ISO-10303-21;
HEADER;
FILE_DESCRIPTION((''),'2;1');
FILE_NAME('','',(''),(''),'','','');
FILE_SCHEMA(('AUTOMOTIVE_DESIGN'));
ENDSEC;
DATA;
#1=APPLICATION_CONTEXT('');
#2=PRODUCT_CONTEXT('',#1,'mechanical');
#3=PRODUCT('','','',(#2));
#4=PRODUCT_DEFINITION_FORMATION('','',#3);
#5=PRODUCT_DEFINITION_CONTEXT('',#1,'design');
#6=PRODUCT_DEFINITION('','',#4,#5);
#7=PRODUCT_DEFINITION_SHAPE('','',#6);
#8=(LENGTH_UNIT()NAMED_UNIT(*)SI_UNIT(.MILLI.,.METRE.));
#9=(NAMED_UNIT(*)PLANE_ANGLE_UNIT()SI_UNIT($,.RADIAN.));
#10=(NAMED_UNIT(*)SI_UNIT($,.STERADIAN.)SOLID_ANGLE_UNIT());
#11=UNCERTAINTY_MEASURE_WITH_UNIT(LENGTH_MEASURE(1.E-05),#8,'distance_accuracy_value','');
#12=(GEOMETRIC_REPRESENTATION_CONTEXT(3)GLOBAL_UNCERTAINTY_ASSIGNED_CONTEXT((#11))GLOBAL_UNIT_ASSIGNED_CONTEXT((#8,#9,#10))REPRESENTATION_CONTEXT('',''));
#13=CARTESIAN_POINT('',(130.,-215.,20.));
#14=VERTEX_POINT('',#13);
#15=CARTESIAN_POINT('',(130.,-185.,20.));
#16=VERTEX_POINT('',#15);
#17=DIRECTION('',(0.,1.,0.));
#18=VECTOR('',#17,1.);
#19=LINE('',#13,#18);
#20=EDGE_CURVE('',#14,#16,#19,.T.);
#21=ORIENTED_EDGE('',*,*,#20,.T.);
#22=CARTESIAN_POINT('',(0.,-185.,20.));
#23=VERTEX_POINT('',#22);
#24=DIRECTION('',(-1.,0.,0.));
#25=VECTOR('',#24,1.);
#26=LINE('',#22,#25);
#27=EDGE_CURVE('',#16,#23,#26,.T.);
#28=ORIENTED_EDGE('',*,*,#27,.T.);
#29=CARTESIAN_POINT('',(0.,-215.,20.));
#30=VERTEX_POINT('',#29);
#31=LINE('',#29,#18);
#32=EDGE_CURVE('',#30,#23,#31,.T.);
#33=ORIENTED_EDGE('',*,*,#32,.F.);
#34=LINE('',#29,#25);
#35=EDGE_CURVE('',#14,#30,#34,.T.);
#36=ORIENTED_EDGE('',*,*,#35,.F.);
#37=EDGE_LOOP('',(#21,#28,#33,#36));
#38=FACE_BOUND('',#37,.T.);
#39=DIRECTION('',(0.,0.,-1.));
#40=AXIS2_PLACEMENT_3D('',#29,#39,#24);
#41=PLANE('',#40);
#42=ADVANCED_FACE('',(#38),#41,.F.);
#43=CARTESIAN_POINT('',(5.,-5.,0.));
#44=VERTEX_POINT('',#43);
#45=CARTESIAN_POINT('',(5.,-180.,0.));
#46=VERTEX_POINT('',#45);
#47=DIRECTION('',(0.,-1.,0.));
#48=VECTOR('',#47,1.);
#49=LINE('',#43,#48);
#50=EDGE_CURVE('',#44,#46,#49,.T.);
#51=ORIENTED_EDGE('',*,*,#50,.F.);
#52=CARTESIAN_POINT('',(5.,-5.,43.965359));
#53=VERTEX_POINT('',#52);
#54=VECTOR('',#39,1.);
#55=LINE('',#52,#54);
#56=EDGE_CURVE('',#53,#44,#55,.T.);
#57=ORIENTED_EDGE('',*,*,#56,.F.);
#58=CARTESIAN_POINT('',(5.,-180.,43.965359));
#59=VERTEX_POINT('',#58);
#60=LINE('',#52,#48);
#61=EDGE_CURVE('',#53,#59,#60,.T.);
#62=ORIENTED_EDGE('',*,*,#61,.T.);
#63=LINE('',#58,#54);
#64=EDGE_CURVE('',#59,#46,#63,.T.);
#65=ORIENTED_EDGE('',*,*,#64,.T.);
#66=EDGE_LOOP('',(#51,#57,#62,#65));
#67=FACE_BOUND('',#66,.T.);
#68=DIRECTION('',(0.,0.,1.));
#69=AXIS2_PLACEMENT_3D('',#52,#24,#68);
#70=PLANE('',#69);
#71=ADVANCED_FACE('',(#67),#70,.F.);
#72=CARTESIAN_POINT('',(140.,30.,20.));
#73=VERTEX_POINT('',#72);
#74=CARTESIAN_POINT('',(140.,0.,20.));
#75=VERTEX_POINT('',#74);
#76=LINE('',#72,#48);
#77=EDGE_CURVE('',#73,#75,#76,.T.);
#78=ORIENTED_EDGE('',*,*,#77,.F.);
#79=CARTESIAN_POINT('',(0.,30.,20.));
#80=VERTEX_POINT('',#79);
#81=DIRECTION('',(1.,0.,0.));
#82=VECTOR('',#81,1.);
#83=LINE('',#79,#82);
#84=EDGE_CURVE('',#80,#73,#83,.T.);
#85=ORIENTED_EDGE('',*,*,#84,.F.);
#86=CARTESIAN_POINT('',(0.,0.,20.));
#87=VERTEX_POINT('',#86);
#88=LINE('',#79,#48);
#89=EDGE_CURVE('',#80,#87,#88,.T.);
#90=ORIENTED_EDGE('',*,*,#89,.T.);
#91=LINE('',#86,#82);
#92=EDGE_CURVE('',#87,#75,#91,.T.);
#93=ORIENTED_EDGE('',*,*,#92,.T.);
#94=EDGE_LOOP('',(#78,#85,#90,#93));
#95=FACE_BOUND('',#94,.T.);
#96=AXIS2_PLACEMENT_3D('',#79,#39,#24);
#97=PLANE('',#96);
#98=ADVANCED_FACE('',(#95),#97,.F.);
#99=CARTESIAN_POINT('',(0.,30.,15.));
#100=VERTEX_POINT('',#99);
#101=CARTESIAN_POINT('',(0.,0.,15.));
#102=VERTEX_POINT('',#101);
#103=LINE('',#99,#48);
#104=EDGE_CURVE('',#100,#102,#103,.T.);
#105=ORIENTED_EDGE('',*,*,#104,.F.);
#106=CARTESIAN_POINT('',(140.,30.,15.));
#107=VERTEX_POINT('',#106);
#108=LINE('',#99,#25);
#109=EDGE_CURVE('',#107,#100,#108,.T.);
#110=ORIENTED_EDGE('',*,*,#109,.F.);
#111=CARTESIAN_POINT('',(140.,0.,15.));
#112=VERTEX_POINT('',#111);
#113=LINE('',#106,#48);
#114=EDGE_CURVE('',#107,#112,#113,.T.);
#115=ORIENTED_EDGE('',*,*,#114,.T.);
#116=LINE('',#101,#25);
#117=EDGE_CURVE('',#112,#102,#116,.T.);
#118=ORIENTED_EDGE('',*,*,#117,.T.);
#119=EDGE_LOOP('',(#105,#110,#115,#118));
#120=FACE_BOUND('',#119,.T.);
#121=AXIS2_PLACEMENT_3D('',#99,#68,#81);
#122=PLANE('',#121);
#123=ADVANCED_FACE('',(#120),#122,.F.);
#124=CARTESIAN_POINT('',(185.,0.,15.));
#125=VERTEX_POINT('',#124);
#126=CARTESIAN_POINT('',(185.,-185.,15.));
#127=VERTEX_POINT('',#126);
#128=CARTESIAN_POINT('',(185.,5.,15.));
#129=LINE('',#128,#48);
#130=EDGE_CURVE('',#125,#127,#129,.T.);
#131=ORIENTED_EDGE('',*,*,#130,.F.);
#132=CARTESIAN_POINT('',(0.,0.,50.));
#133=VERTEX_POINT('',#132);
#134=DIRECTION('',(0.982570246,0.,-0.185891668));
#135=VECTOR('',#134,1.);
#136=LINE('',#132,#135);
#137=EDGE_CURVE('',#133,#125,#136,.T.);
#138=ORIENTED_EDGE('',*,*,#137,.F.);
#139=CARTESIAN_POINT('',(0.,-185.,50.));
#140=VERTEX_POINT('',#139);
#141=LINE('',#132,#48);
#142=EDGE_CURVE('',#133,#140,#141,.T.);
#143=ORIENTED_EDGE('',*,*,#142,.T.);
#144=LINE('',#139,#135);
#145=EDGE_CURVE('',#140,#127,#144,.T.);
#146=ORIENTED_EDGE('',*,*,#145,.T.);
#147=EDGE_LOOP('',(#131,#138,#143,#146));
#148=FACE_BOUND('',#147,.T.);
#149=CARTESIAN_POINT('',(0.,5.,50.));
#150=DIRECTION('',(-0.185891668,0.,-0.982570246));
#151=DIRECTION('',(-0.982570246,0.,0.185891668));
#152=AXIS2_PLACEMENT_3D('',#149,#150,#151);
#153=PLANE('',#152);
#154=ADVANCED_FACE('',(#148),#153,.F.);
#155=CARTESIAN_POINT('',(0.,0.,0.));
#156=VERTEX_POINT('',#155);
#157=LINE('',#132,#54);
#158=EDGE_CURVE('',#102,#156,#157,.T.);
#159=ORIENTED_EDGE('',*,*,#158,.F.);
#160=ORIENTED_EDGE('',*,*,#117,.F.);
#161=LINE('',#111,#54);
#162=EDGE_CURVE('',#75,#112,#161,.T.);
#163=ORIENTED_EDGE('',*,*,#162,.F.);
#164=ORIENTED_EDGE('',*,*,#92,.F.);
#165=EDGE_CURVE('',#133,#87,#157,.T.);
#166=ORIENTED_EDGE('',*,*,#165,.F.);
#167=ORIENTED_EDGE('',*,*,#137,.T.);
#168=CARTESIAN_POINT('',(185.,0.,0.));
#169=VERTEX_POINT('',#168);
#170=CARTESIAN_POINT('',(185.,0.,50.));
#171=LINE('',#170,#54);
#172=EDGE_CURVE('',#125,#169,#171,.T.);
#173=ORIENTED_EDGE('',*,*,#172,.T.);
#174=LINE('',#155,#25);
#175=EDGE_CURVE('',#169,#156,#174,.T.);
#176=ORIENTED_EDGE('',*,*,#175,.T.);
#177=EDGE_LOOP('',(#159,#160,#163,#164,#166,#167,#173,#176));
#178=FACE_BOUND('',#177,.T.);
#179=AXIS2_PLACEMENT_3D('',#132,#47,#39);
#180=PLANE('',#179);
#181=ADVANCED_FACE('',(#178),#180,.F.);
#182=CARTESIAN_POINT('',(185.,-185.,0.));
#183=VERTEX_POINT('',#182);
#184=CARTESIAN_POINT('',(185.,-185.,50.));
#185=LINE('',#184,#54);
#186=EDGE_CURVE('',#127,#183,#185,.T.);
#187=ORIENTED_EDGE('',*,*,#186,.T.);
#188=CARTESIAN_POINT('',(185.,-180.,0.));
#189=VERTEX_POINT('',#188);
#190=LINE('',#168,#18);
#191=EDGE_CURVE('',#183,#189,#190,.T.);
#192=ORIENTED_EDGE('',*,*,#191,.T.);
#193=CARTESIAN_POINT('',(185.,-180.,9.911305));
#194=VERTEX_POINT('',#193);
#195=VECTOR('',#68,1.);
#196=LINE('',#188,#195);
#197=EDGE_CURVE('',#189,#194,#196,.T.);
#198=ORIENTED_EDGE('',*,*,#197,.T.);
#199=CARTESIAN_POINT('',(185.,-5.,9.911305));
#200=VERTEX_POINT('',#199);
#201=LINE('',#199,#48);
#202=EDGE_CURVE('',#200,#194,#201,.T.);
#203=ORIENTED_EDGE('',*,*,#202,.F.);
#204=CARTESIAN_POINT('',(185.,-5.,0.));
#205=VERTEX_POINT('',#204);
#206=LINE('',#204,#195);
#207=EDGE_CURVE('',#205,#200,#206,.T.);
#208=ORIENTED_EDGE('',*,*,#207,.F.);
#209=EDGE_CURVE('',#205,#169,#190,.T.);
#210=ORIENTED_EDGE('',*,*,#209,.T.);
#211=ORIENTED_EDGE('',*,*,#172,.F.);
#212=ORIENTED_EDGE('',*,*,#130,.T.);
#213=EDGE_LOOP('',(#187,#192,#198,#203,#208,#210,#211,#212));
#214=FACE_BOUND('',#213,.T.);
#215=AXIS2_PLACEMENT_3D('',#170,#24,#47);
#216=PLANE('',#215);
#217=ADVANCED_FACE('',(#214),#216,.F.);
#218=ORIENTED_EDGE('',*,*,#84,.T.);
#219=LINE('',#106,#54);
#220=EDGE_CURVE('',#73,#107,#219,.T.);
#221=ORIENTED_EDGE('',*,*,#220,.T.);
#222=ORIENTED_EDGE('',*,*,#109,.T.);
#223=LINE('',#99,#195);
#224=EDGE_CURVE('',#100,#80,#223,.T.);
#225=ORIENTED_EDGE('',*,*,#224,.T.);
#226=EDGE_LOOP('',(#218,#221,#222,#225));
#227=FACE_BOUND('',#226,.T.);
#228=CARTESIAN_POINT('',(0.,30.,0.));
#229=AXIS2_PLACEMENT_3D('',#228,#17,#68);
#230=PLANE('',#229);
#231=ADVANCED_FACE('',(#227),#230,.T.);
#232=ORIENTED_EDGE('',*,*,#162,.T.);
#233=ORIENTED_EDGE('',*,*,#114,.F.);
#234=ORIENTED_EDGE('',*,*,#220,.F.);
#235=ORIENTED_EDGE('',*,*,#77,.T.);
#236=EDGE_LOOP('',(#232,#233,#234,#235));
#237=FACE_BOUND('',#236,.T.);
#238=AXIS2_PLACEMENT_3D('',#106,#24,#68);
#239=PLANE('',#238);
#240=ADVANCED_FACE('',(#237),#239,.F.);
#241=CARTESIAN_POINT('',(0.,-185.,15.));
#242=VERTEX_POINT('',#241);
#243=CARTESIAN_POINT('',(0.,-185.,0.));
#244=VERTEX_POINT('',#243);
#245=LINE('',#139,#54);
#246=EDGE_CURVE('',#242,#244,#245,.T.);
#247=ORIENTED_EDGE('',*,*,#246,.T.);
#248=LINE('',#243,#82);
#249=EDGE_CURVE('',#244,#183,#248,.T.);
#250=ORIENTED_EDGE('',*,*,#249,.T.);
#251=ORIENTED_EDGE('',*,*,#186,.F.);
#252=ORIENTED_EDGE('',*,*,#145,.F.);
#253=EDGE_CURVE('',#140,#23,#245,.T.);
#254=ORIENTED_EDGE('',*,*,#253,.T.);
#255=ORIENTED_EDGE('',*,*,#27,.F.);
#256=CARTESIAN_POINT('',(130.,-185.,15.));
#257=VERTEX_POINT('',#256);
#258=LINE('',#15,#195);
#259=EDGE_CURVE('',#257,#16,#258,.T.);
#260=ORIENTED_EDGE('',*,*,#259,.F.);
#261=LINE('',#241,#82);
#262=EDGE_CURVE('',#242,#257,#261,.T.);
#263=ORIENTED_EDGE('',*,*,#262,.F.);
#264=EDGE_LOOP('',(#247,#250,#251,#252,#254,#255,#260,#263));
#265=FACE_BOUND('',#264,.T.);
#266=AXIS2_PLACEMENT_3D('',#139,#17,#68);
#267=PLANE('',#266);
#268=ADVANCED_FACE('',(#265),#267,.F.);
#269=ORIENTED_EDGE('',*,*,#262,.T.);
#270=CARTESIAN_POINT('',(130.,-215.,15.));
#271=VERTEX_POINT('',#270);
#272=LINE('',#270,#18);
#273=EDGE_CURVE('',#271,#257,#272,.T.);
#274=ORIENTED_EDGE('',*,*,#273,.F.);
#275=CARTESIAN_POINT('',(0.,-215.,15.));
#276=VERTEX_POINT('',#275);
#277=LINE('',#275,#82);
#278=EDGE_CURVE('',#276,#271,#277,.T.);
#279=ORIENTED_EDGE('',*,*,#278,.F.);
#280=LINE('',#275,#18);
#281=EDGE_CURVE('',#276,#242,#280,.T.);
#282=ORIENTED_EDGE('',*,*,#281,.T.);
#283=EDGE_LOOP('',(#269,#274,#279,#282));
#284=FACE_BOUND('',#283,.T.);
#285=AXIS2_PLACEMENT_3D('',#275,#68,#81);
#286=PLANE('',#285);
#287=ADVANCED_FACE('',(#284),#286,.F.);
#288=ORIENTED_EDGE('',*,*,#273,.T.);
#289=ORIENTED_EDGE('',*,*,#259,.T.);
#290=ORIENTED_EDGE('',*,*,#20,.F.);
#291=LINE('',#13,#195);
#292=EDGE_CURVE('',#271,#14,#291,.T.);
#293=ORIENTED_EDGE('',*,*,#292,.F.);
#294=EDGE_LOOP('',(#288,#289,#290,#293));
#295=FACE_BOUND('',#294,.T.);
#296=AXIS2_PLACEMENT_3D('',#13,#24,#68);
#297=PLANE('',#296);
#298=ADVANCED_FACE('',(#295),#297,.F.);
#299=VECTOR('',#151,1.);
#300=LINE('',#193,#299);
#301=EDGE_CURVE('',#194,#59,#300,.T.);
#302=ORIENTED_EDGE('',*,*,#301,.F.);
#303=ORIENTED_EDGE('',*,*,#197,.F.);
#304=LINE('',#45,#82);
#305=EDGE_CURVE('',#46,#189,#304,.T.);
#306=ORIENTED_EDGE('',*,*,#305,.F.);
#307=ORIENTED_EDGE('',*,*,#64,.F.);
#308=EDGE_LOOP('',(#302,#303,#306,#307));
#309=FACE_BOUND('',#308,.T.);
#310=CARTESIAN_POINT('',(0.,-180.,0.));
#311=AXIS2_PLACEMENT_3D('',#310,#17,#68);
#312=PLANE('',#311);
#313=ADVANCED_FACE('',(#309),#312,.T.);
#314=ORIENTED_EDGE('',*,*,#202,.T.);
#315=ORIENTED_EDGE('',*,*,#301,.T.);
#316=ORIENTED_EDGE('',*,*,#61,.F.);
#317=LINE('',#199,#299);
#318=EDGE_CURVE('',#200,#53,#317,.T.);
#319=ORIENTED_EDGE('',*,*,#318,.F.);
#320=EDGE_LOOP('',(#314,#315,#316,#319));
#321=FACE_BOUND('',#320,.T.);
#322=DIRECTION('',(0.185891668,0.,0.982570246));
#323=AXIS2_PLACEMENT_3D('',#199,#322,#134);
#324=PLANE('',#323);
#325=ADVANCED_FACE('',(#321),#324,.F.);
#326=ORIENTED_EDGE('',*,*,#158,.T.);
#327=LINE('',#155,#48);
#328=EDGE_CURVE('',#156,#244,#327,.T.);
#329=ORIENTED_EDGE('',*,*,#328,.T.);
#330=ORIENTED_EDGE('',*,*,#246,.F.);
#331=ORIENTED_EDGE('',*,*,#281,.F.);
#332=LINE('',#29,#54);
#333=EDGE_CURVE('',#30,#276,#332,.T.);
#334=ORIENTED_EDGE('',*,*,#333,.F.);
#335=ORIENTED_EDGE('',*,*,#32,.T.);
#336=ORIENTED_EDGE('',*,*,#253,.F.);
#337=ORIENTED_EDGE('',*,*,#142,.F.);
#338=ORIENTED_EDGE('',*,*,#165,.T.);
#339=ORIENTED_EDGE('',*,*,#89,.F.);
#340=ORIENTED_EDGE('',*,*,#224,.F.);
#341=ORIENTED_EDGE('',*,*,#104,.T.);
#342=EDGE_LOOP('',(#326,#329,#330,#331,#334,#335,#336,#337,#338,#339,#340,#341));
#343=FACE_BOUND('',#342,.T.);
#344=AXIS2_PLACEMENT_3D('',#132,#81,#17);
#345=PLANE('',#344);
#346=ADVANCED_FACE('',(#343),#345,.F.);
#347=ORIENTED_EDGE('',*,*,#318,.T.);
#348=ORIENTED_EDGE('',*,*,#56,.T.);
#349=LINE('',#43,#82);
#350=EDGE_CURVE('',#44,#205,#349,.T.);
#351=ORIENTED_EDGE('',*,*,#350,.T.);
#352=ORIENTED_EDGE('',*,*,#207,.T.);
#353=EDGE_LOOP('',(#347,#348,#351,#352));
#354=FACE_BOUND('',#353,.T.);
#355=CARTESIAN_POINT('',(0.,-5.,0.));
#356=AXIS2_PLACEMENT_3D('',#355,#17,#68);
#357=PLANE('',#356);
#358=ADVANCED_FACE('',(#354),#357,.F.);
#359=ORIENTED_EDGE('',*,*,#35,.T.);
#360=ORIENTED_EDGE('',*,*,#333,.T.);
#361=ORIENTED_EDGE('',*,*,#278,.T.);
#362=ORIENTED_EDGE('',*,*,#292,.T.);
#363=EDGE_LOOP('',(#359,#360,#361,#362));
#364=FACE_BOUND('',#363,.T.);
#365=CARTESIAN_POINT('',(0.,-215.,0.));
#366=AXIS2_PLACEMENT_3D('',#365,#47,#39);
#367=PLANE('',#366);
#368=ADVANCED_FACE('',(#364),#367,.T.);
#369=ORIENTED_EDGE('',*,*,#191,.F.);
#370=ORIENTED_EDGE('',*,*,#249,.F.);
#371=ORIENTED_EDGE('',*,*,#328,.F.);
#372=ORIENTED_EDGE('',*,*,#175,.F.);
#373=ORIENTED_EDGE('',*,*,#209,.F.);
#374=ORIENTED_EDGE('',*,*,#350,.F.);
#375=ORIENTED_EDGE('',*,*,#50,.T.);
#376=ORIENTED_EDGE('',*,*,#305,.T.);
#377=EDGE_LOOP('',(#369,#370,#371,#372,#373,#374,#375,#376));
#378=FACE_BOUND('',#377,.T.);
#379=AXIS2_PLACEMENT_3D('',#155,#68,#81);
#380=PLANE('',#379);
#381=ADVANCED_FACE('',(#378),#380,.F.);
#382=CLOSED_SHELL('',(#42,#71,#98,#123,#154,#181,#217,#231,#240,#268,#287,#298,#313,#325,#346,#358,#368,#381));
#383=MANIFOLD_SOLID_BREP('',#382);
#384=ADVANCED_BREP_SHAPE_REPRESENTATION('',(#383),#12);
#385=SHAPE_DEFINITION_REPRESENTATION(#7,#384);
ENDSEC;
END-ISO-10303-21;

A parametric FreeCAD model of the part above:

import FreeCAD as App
import Part
import Sketcher

V = App.Vector

doc = App.newDocument("Part")
body = doc.addObject("PartDesign::Body", "Body")

sketch1 = body.newObject("Sketcher::SketchObject", "Sketch")
sketch1.AttachmentSupport = (doc.getObject("XY_Plane"), [""])
sketch1.MapMode = "FlatFace"
sketch1.addGeometry(Part.LineSegment(V(0, 0, 0), V(0, -185, 0)), False)
sketch1.addGeometry(Part.LineSegment(V(0, -185, 0), V(185, -185, 0)), False)
sketch1.addGeometry(Part.LineSegment(V(185, -185, 0), V(185, 0, 0)), False)
sketch1.addGeometry(Part.LineSegment(V(185, 0, 0), V(0, 0, 0)), False)
sketch1.addConstraint(Sketcher.Constraint("Coincident", 0, 2, 1, 1))
sketch1.addConstraint(Sketcher.Constraint("Coincident", 1, 2, 2, 1))
sketch1.addConstraint(Sketcher.Constraint("Coincident", 2, 2, 3, 1))
sketch1.addConstraint(Sketcher.Constraint("Coincident", 3, 2, 0, 1))
sketch1.addConstraint(Sketcher.Constraint("Vertical", 0))
sketch1.addConstraint(Sketcher.Constraint("Horizontal", 1))
sketch1.addConstraint(Sketcher.Constraint("Vertical", 2))
sketch1.addConstraint(Sketcher.Constraint("Horizontal", 3))
sketch1.addConstraint(Sketcher.Constraint("Coincident", 3, 2, -1, 1))
sketch1.addConstraint(Sketcher.Constraint("Equal", 3, 0))
sketch1.addConstraint(Sketcher.Constraint("DistanceX", 1, 1, 1, 2, 185.0))
pad1 = body.newObject("PartDesign::Pad", "Pad")
pad1.Profile = sketch1
pad1.Length = 50

sketch2 = body.newObject("Sketcher::SketchObject", "Sketch001")
sketch2.AttachmentSupport = (doc.getObject("XZ_Plane"), [""])
sketch2.MapMode = "FlatFace"
sketch2.AttachmentOffset = App.Placement(V(0, 0, 185), App.Rotation())
sketch2.addGeometry(Part.LineSegment(V(0, 50, 0), V(185, 15, 0)), False)
sketch2.addGeometry(Part.LineSegment(V(185, 15, 0), V(185, 50, 0)), False)
sketch2.addGeometry(Part.LineSegment(V(185, 50, 0), V(0, 50, 0)), False)
sketch2.addConstraint(Sketcher.Constraint("Coincident", 0, 2, 1, 1))
sketch2.addConstraint(Sketcher.Constraint("Coincident", 1, 2, 2, 1))
sketch2.addConstraint(Sketcher.Constraint("Coincident", 2, 2, 0, 1))
sketch2.addConstraint(Sketcher.Constraint("Vertical", 1))
sketch2.addConstraint(Sketcher.Constraint("Horizontal", 2))
sketch2.addConstraint(Sketcher.Constraint("PointOnObject", 2, 2, -2))
sketch2.addConstraint(Sketcher.Constraint("DistanceX", 2, 2, 2, 1, 185.0))
sketch2.addConstraint(Sketcher.Constraint("DistanceY", 1, 1, 1, 2, 35.0))
sketch2.addConstraint(Sketcher.Constraint("DistanceY", -1, 1, 0, 2, 15.0))
pocket1 = body.newObject("PartDesign::Pocket", "Pocket")
pocket1.Profile = sketch2
pocket1.Length = 190

sketch3 = body.newObject("Sketcher::SketchObject", "Sketch002")
sketch3.AttachmentSupport = (doc.getObject("XZ_Plane"), [""])
sketch3.MapMode = "FlatFace"
sketch3.AttachmentOffset = App.Placement(V(0, 0, 180), App.Rotation())
sketch3.addGeometry(Part.LineSegment(V(185, 10, 0), V(5, 44, 0)), False)
sketch3.addGeometry(Part.LineSegment(V(5, 44, 0), V(5, 0, 0)), False)
sketch3.addGeometry(Part.LineSegment(V(5, 0, 0), V(185, 0, 0)), False)
sketch3.addGeometry(Part.LineSegment(V(185, 0, 0), V(185, 10, 0)), False)
sketch3.addConstraint(Sketcher.Constraint("Coincident", 0, 2, 1, 1))
sketch3.addConstraint(Sketcher.Constraint("Coincident", 1, 2, 2, 1))
sketch3.addConstraint(Sketcher.Constraint("Coincident", 2, 2, 3, 1))
sketch3.addConstraint(Sketcher.Constraint("Coincident", 3, 2, 0, 1))
sketch3.addConstraint(Sketcher.Constraint("Vertical", 1))
sketch3.addConstraint(Sketcher.Constraint("Horizontal", 2))
sketch3.addConstraint(Sketcher.Constraint("Vertical", 3))
sketch3.addConstraint(Sketcher.Constraint("PointOnObject", 1, 2, -1))
sketch3.addConstraint(Sketcher.Constraint("DistanceX", 2, 1, 2, 2, 180.0))
sketch3.addConstraint(Sketcher.Constraint("DistanceX", -1, 1, 0, 2, 5.0))
sketch3.addConstraint(Sketcher.Constraint("DistanceY", 1, 2, 1, 1, 43.965359))
sketch3.addConstraint(Sketcher.Constraint("Distance", 0, 183.193009))
pocket2 = body.newObject("PartDesign::Pocket", "Pocket001")
pocket2.Profile = sketch3
pocket2.Length = 175

sketch4 = body.newObject("Sketcher::SketchObject", "Sketch003")
sketch4.AttachmentSupport = (doc.getObject("XZ_Plane"), [""])
sketch4.MapMode = "FlatFace"
sketch4.AttachmentOffset = App.Placement(V(0, 0, 185), App.Rotation())
sketch4.addGeometry(Part.LineSegment(V(0, 20, 0), V(0, 15, 0)), False)
sketch4.addGeometry(Part.LineSegment(V(0, 15, 0), V(130, 15, 0)), False)
sketch4.addGeometry(Part.LineSegment(V(130, 15, 0), V(130, 20, 0)), False)
sketch4.addGeometry(Part.LineSegment(V(130, 20, 0), V(0, 20, 0)), False)
sketch4.addConstraint(Sketcher.Constraint("Coincident", 0, 2, 1, 1))
sketch4.addConstraint(Sketcher.Constraint("Coincident", 1, 2, 2, 1))
sketch4.addConstraint(Sketcher.Constraint("Coincident", 2, 2, 3, 1))
sketch4.addConstraint(Sketcher.Constraint("Coincident", 3, 2, 0, 1))
sketch4.addConstraint(Sketcher.Constraint("Vertical", 0))
sketch4.addConstraint(Sketcher.Constraint("Horizontal", 1))
sketch4.addConstraint(Sketcher.Constraint("Vertical", 2))
sketch4.addConstraint(Sketcher.Constraint("Horizontal", 3))
sketch4.addConstraint(Sketcher.Constraint("PointOnObject", 0, 2, -2))
sketch4.addConstraint(Sketcher.Constraint("DistanceX", 1, 1, 1, 2, 130.0))
sketch4.addConstraint(Sketcher.Constraint("DistanceY", 0, 2, 0, 1, 5.0))
sketch4.addConstraint(Sketcher.Constraint("DistanceY", -1, 1, 0, 2, 15.0))
pad2 = body.newObject("PartDesign::Pad", "Pad001")
pad2.Profile = sketch4
pad2.Length = 30

sketch5 = body.newObject("Sketcher::SketchObject", "Sketch004")
sketch5.AttachmentSupport = (doc.getObject("XZ_Plane"), [""])
sketch5.MapMode = "FlatFace"
sketch5.addGeometry(Part.LineSegment(V(0, 15, 0), V(0, 20, 0)), False)
sketch5.addGeometry(Part.LineSegment(V(0, 20, 0), V(140, 20, 0)), False)
sketch5.addGeometry(Part.LineSegment(V(140, 20, 0), V(140, 15, 0)), False)
sketch5.addGeometry(Part.LineSegment(V(140, 15, 0), V(0, 15, 0)), False)
sketch5.addConstraint(Sketcher.Constraint("Coincident", 0, 2, 1, 1))
sketch5.addConstraint(Sketcher.Constraint("Coincident", 1, 2, 2, 1))
sketch5.addConstraint(Sketcher.Constraint("Coincident", 2, 2, 3, 1))
sketch5.addConstraint(Sketcher.Constraint("Coincident", 3, 2, 0, 1))
sketch5.addConstraint(Sketcher.Constraint("Vertical", 0))
sketch5.addConstraint(Sketcher.Constraint("Horizontal", 1))
sketch5.addConstraint(Sketcher.Constraint("Vertical", 2))
sketch5.addConstraint(Sketcher.Constraint("Horizontal", 3))
sketch5.addConstraint(Sketcher.Constraint("PointOnObject", 0, 2, -2))
sketch5.addConstraint(Sketcher.Constraint("DistanceX", 1, 1, 1, 2, 140.0))
sketch5.addConstraint(Sketcher.Constraint("DistanceY", 0, 1, 0, 2, 5.0))
sketch5.addConstraint(Sketcher.Constraint("DistanceY", -1, 1, 0, 2, 20.0))
pad3 = body.newObject("PartDesign::Pad", "Pad002")
pad3.Profile = sketch5
pad3.Length = 30
pad3.Reversed = True

doc.recompute()
